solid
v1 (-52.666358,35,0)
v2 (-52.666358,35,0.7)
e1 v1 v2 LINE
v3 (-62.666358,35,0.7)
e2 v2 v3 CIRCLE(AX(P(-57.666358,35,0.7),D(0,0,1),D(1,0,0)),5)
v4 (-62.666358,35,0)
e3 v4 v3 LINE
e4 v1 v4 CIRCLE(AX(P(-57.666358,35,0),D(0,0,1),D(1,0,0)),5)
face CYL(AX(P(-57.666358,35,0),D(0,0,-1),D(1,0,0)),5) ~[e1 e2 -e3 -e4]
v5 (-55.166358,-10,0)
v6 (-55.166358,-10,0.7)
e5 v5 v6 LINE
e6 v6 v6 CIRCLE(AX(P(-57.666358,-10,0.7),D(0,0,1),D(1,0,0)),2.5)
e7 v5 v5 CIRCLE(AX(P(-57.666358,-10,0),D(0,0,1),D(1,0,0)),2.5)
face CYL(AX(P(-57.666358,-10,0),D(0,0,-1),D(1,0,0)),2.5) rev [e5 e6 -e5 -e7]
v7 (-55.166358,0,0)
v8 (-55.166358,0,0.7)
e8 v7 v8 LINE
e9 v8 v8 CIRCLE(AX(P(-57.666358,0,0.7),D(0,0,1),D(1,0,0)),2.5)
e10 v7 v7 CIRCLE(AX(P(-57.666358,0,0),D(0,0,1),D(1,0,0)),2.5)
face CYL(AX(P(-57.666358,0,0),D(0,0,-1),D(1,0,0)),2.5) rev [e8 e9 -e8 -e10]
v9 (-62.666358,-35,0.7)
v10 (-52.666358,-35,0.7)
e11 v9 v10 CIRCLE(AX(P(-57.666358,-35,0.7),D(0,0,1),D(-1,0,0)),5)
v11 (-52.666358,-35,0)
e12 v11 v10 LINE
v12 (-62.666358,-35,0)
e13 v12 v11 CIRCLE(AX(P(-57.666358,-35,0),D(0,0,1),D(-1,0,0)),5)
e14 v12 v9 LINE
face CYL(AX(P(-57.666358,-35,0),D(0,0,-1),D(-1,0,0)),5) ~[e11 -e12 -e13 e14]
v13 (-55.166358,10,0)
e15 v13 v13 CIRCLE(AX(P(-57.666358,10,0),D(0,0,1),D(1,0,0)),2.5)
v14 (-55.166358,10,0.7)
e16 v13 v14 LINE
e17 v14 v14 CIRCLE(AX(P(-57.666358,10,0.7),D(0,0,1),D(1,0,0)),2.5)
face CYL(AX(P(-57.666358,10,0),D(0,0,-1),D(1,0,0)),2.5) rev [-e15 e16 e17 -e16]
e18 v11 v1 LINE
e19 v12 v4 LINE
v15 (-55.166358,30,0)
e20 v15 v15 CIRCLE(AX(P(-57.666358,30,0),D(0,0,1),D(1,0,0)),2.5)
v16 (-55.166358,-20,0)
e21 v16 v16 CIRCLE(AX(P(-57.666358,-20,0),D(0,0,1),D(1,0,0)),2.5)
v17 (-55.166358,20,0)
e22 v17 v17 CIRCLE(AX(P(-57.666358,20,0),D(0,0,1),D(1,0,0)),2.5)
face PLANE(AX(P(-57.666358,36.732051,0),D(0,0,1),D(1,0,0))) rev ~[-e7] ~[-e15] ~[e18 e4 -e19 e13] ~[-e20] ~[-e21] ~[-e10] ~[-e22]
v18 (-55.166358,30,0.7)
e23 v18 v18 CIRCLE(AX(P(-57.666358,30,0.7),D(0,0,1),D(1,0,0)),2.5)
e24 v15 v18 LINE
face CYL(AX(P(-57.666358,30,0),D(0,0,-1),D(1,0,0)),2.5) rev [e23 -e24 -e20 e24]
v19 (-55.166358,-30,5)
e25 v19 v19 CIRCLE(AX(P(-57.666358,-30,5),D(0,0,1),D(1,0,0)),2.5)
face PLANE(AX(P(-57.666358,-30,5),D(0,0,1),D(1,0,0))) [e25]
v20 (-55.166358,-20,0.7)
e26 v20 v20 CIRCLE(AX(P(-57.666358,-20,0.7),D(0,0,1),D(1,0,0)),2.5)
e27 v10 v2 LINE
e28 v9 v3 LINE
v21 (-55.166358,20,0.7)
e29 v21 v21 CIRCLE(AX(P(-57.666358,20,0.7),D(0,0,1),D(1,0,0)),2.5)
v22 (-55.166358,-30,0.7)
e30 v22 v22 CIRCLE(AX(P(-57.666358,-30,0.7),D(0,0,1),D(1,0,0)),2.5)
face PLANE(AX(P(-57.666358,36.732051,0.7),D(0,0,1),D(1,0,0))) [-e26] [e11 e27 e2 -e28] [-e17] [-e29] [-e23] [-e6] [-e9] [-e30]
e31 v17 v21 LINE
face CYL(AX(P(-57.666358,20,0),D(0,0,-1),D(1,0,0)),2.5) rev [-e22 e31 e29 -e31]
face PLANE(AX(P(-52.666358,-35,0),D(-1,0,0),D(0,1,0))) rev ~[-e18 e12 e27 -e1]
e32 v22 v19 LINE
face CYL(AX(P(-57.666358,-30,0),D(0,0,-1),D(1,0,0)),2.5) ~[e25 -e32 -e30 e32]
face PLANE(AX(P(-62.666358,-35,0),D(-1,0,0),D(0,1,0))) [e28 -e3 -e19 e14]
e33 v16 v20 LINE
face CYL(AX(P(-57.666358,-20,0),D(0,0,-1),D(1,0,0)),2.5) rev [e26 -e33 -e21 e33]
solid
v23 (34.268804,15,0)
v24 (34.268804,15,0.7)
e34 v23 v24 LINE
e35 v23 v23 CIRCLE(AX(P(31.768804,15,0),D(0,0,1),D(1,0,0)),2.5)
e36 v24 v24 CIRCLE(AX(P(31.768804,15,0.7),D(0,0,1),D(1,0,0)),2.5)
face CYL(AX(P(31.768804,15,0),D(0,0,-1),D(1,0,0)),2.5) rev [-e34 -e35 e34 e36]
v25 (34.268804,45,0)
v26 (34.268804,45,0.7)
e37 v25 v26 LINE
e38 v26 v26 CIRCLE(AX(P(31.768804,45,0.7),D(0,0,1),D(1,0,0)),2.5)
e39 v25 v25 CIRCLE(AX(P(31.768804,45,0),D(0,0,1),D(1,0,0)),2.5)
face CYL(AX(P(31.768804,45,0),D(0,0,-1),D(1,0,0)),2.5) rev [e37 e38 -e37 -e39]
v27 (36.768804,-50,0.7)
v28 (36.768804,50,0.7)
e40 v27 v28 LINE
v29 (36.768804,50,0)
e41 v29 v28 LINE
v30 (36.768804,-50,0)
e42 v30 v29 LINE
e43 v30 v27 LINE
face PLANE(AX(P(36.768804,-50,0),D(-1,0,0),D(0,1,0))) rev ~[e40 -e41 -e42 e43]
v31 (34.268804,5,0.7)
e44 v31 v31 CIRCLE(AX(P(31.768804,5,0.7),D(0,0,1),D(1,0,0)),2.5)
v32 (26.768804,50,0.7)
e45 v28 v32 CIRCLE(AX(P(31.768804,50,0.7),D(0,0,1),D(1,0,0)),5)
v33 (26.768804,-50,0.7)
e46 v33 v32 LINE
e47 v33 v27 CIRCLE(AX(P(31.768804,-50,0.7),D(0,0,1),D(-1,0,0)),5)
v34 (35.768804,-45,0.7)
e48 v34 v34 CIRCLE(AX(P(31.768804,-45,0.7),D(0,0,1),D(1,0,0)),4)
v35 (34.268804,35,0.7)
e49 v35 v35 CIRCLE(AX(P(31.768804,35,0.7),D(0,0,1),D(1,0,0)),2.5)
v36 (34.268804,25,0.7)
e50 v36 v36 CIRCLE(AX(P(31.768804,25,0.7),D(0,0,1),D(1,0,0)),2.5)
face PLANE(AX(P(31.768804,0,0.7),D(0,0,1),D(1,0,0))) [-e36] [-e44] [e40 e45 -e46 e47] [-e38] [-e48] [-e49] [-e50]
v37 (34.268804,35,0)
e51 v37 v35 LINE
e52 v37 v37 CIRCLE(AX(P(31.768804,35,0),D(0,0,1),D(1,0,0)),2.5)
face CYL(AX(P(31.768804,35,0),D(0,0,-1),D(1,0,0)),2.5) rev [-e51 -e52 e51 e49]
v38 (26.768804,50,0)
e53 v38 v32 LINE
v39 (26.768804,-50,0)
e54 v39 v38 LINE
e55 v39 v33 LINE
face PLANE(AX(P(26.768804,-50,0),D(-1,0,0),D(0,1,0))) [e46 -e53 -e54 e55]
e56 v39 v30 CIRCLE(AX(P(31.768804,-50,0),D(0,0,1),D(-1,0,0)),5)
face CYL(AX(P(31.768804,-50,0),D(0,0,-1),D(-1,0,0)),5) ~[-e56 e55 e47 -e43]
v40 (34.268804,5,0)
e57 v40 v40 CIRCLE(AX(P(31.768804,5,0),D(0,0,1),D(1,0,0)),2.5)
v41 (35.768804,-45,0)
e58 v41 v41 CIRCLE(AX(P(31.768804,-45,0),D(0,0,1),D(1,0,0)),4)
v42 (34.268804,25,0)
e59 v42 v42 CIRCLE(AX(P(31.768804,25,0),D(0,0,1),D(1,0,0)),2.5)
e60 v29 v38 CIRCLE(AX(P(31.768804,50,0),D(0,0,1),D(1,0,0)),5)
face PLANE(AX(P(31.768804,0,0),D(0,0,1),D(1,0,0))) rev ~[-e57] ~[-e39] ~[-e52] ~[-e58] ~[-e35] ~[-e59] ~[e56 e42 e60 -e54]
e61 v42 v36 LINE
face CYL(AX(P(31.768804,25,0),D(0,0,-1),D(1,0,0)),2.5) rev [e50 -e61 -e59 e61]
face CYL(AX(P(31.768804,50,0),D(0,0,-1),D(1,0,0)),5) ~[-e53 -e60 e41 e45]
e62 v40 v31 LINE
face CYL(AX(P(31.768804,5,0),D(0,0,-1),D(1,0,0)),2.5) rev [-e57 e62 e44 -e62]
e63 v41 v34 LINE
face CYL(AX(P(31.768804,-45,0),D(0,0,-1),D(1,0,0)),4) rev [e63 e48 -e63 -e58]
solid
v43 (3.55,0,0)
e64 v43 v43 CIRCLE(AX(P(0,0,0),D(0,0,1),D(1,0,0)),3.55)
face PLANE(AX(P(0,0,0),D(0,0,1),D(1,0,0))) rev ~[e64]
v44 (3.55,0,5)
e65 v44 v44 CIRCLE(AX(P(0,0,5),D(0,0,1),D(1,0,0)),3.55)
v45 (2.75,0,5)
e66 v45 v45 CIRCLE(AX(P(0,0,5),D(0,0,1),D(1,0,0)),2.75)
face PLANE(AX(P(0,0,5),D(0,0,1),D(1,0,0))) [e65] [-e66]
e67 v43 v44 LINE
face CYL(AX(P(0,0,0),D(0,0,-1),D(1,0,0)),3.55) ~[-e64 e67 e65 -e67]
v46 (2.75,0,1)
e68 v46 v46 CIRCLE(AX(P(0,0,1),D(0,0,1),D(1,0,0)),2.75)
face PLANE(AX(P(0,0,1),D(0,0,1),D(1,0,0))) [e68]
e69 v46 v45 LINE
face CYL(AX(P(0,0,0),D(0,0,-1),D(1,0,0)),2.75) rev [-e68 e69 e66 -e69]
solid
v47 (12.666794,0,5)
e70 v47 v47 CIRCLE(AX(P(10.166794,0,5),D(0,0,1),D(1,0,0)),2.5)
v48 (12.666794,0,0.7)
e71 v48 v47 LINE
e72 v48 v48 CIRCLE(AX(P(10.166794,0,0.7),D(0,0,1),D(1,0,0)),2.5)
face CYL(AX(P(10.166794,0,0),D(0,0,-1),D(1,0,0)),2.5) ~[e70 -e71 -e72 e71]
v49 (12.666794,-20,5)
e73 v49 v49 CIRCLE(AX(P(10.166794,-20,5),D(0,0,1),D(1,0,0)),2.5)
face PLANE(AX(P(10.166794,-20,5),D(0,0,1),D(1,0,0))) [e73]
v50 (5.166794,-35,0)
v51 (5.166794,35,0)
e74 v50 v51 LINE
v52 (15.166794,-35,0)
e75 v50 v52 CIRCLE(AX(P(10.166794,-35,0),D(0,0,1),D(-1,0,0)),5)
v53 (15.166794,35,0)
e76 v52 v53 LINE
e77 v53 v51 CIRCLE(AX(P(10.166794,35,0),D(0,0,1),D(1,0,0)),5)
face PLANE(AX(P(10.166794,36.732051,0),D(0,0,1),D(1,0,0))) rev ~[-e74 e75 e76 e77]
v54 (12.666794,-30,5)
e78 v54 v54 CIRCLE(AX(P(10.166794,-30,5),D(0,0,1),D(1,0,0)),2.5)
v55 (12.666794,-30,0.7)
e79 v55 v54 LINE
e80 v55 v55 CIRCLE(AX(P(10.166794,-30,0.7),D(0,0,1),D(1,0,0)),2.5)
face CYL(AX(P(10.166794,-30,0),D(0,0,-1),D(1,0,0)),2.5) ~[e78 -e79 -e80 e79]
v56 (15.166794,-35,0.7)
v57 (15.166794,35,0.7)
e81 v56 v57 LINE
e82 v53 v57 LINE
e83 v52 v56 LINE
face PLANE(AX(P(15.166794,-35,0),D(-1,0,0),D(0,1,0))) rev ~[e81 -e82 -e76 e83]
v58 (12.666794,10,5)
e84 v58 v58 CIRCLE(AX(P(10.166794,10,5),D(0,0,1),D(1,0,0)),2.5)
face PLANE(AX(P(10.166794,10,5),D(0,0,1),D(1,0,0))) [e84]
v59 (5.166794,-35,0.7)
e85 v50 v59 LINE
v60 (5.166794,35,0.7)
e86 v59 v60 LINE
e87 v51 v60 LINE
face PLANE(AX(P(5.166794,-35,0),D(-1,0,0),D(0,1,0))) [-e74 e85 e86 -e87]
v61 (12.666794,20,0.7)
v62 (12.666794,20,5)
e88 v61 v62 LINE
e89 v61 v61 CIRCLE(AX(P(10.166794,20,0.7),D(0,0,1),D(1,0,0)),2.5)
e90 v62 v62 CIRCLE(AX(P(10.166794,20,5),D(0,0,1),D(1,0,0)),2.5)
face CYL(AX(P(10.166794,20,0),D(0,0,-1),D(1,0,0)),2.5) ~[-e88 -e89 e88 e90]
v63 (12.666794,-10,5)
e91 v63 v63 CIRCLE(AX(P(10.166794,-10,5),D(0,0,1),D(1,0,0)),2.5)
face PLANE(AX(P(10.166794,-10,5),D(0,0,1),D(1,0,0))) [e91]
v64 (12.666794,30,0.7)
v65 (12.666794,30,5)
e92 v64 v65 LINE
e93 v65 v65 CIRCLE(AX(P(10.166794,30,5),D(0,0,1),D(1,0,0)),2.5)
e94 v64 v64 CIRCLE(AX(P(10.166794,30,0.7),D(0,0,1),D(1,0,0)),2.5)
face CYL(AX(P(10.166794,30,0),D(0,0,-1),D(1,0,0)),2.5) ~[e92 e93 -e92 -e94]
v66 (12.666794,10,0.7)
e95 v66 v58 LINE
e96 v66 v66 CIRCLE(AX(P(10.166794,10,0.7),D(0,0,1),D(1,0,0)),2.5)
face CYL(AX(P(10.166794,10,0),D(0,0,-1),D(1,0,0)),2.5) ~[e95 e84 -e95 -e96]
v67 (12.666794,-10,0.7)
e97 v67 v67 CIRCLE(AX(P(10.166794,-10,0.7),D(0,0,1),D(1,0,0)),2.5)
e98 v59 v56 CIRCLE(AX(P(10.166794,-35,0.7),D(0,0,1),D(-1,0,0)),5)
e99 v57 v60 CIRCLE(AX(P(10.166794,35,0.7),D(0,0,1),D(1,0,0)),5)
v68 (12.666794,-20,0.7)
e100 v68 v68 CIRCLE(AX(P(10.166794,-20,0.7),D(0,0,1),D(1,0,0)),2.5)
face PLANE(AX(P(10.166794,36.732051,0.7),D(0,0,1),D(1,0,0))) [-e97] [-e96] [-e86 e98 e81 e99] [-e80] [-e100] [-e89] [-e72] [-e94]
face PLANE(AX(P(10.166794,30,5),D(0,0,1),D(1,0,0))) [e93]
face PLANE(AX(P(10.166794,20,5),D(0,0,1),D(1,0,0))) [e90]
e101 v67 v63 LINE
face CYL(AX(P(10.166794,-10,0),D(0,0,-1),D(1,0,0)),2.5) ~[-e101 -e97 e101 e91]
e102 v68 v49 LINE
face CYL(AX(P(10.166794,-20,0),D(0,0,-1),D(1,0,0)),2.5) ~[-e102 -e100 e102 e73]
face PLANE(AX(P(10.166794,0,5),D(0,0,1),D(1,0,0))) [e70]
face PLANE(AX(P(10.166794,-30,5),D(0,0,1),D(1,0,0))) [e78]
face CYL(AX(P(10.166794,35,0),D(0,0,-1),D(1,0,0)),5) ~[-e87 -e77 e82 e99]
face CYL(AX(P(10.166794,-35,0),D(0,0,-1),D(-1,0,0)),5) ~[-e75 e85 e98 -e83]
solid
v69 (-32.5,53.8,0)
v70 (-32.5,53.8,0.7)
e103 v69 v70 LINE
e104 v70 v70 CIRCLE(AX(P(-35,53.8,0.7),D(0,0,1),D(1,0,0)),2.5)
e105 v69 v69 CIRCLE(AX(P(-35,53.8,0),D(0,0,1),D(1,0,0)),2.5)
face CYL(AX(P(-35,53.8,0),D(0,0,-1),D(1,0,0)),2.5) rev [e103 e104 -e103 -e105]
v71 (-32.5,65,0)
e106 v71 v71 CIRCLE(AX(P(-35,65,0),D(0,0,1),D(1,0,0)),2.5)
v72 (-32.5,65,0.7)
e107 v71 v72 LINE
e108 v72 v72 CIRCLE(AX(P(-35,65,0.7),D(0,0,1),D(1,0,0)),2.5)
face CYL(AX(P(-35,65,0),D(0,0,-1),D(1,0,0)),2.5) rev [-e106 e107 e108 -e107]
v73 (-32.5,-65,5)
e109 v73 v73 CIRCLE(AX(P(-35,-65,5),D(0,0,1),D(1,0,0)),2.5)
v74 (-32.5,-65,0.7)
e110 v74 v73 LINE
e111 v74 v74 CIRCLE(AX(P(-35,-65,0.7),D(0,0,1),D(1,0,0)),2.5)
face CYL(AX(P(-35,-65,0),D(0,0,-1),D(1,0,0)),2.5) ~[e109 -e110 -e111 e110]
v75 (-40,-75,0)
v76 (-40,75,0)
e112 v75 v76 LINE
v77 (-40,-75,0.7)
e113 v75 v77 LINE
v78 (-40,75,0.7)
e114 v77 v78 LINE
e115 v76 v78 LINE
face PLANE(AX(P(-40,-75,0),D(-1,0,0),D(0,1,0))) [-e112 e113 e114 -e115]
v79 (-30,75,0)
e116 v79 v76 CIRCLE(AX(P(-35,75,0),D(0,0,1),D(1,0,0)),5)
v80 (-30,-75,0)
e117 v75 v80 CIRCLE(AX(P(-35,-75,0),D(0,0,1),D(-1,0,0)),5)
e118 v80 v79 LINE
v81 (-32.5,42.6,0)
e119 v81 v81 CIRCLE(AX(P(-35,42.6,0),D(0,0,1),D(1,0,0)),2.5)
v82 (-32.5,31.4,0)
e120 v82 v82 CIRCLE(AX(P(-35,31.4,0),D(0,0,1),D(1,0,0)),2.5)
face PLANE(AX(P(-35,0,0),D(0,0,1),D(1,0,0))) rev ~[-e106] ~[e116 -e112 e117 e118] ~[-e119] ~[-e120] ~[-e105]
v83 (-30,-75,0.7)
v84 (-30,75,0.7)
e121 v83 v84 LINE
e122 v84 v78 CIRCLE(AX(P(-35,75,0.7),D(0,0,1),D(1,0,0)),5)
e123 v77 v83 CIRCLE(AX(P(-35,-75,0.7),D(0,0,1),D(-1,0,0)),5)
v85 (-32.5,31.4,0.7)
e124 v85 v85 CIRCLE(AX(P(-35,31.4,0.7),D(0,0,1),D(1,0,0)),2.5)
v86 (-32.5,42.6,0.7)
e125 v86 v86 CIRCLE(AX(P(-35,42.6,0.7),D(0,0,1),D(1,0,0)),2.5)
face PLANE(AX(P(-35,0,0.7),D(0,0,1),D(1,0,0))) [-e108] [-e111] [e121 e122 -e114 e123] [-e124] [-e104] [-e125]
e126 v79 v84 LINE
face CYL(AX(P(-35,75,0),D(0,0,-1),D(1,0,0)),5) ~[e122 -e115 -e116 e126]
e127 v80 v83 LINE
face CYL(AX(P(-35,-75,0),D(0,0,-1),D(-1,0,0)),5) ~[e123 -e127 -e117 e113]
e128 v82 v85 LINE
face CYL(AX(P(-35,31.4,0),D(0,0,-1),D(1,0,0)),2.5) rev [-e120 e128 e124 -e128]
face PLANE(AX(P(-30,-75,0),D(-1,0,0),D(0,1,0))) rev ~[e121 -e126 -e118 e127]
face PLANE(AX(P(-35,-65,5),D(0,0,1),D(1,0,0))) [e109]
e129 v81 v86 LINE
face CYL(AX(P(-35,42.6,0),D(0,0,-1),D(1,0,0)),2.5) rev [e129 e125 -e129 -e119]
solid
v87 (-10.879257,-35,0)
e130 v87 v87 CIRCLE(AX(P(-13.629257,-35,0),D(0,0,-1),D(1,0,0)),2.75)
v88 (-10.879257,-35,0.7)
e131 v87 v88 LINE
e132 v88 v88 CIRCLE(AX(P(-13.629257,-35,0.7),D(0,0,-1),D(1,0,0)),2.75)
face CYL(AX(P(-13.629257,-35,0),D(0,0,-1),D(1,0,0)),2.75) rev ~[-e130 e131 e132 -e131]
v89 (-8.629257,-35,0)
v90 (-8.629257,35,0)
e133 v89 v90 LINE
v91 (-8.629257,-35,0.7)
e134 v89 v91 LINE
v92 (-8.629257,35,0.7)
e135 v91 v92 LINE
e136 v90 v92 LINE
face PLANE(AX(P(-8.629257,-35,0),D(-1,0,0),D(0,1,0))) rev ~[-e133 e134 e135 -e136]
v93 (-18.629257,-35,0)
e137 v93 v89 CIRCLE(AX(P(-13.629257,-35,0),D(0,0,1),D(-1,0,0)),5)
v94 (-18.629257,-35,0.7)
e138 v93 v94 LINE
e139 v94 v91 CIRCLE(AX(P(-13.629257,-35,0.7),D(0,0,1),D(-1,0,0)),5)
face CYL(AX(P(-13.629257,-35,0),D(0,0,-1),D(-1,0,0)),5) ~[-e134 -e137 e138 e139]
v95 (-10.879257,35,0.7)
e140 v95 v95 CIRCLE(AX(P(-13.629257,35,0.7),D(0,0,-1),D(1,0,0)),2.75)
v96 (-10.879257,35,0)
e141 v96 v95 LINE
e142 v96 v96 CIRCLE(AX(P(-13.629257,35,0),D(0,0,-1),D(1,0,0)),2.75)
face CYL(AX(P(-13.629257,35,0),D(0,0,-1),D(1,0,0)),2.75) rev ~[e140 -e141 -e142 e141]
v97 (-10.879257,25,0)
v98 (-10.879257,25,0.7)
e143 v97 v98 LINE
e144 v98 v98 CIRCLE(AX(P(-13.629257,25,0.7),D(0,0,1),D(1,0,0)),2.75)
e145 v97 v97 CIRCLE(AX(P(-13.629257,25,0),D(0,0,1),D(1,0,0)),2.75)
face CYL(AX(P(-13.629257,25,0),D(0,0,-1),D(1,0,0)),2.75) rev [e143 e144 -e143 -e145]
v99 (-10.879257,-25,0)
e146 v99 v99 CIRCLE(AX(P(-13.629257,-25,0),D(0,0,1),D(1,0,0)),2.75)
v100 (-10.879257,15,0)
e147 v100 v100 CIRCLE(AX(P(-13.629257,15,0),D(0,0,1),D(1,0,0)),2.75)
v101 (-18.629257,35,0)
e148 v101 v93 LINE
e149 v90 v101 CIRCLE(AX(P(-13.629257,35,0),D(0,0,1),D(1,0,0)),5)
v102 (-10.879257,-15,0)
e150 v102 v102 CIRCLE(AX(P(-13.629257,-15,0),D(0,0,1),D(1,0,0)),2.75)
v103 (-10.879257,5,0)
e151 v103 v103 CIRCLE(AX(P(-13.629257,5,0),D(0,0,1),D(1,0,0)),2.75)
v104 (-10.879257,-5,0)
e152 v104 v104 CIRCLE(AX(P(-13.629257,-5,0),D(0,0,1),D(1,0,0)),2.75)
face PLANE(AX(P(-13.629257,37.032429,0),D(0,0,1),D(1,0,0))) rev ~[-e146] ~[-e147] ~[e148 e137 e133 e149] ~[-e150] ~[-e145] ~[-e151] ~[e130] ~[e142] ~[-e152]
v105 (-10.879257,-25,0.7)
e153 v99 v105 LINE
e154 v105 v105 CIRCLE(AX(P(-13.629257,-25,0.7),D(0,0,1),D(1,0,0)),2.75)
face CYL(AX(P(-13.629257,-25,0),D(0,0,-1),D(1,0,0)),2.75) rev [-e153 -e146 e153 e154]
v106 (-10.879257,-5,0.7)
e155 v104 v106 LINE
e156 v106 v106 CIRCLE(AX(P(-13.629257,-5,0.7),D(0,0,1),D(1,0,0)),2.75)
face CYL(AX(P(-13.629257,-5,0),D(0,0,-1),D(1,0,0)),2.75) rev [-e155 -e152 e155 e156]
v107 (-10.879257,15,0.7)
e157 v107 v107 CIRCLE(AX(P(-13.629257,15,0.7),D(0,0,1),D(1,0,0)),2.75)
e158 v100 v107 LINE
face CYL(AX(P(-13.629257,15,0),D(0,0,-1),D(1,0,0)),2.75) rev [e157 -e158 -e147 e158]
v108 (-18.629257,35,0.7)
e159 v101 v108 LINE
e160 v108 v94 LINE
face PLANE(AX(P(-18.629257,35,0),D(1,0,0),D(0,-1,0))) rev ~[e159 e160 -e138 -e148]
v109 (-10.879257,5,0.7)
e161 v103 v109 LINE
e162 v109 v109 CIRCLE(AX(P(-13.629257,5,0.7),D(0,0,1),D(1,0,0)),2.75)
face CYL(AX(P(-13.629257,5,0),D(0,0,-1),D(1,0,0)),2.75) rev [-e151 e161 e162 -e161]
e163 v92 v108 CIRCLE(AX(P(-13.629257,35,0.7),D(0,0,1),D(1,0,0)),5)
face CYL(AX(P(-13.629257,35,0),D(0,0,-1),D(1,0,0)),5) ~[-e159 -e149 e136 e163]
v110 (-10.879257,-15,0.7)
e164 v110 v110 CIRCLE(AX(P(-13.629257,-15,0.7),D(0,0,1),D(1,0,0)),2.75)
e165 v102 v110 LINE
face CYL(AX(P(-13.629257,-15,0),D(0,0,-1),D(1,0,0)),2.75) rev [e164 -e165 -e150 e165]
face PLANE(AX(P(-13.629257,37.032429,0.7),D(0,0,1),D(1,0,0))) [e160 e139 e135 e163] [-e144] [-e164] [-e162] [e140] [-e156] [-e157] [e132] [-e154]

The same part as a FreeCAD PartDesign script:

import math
import FreeCAD as App
import Part
import Sketcher
Q = App.Units.Quantity

doc = App.newDocument("Part")
body = doc.addObject("PartDesign::Body", "Body")

sketch1 = body.newObject("Sketcher::SketchObject", "Sketch")
sketch1.AttachmentSupport = (doc.getObject("XY_Plane"), [""])
sketch1.MapMode = "FlatFace"
sketch1.addGeometry(Part.LineSegment(App.Vector(-40, 75, 0), App.Vector(-40, -75, 0)), False)
sketch1.addGeometry(Part.ArcOfCircle(Part.Circle(App.Vector(-35, -75, 0), App.Vector(0, 0, 1), 5), math.radians(180), math.radians(360)), False)
sketch1.addGeometry(Part.LineSegment(App.Vector(-30, -75, 0), App.Vector(-30, 75, 0)), False)
sketch1.addGeometry(Part.ArcOfCircle(Part.Circle(App.Vector(-35, 75, 0), App.Vector(0, 0, 1), 5), math.radians(0), math.radians(180)), False)
sketch1.addGeometry(Part.Circle(App.Vector(-35, -65, 0), App.Vector(0, 0, 1), 2.5), False)
sketch1.addGeometry(Part.Circle(App.Vector(-35, 31.4, 0), App.Vector(0, 0, 1), 2.5), False)
sketch1.addGeometry(Part.Circle(App.Vector(-35, 42.6, 0), App.Vector(0, 0, 1), 2.5), False)
sketch1.addGeometry(Part.Circle(App.Vector(-35, 53.8, 0), App.Vector(0, 0, 1), 2.5), False)
sketch1.addGeometry(Part.Circle(App.Vector(-35, 65, 0), App.Vector(0, 0, 1), 2.5), False)
sketch1.addConstraint(Sketcher.Constraint("Tangent", 0, 2, 1, 1))
sketch1.addConstraint(Sketcher.Constraint("Tangent", 1, 2, 2, 1))
sketch1.addConstraint(Sketcher.Constraint("Tangent", 2, 2, 3, 1))
sketch1.addConstraint(Sketcher.Constraint("Tangent", 3, 2, 0, 1))
sketch1.addConstraint(Sketcher.Constraint("Vertical", 0))
sketch1.addConstraint(Sketcher.Constraint("Vertical", 2))
sketch1.addConstraint(Sketcher.Constraint("Equal", 4, 5))
sketch1.addConstraint(Sketcher.Constraint("Equal", 5, 6))
sketch1.addConstraint(Sketcher.Constraint("Equal", 6, 7))
sketch1.addConstraint(Sketcher.Constraint("Equal", 7, 8))
sketch1.addConstraint(Sketcher.Constraint("Symmetric", 4, 3, 8, 3, -1))
sketch1.addConstraint(Sketcher.Constraint("Vertical", 3, 3, 4, 3))
sketch1.addConstraint(Sketcher.Constraint("Vertical", 4, 3, 5, 3))
sketch1.addConstraint(Sketcher.Constraint("Vertical", 5, 3, 6, 3))
sketch1.addConstraint(Sketcher.Constraint("Vertical", 6, 3, 7, 3))
sketch1.addConstraint(Sketcher.Constraint("Diameter", 4, Q("5 mm")))
sketch1.addConstraint(Sketcher.Constraint("Radius", 1, Q("5 mm")))
sketch1.addConstraint(Sketcher.Constraint("DistanceY", 0, 2, 0, 1, Q("150 mm")))
sketch1.addConstraint(Sketcher.Constraint("DistanceX", 1, 3, -1, 1, Q("35 mm")))
sketch1.addConstraint(Sketcher.Constraint("DistanceY", 1, 3, -1, 1, Q("75 mm")))
sketch1.addConstraint(Sketcher.Constraint("DistanceY", 4, 3, -1, 1, Q("65 mm")))
sketch1.addConstraint(Sketcher.Constraint("DistanceY", -1, 1, 5, 3, Q("31.4 mm")))
sketch1.addConstraint(Sketcher.Constraint("DistanceY", -1, 1, 6, 3, Q("42.6 mm")))
sketch1.addConstraint(Sketcher.Constraint("DistanceY", -1, 1, 7, 3, Q("53.8 mm")))
pad1 = body.newObject("PartDesign::Pad", "Pad")
pad1.Profile = sketch1
pad1.Length = 0.7

sketch2 = body.newObject("Sketcher::SketchObject", "Sketch001")
sketch2.AttachmentSupport = (doc.getObject("XY_Plane"), [""])
sketch2.MapMode = "FlatFace"
sketch2.addGeometry(Part.Circle(App.Vector(-35, -65, 0), App.Vector(0, 0, 1), 2.5), False)
sketch2.addConstraint(Sketcher.Constraint("Diameter", 0, Q("5 mm")))
sketch2.addConstraint(Sketcher.Constraint("DistanceX", 0, 3, -1, 1, Q("35 mm")))
sketch2.addConstraint(Sketcher.Constraint("DistanceY", 0, 3, -1, 1, Q("65 mm")))
pad2 = body.newObject("PartDesign::Pad", "Pad001")
pad2.Profile = sketch2
pad2.Length = 5
body2 = doc.addObject("PartDesign::Body", "Body001")

sketch3 = body2.newObject("Sketcher::SketchObject", "Sketch002")
sketch3.AttachmentSupport = (doc.getObject("XY_Plane001"), [""])
sketch3.MapMode = "FlatFace"
sketch3.addGeometry(Part.ArcOfCircle(Part.Circle(App.Vector(-57.7, 35, 0), App.Vector(0, 0, 1), 5), math.radians(0), math.radians(180)), False)
sketch3.addGeometry(Part.LineSegment(App.Vector(-62.7, 35, 0), App.Vector(-62.7, -35, 0)), False)
sketch3.addGeometry(Part.ArcOfCircle(Part.Circle(App.Vector(-57.7, -35, 0), App.Vector(0, 0, 1), 5), math.radians(180), math.radians(360)), False)
sketch3.addGeometry(Part.LineSegment(App.Vector(-52.7, -35, 0), App.Vector(-52.7, 35, 0)), False)
sketch3.addGeometry(Part.Circle(App.Vector(-57.7, -30, 0), App.Vector(0, 0, 1), 2.5), False)
sketch3.addGeometry(Part.Circle(App.Vector(-57.7, -20, 0), App.Vector(0, 0, 1), 2.5), False)
sketch3.addGeometry(Part.Circle(App.Vector(-57.7, -10, 0), App.Vector(0, 0, 1), 2.5), False)
sketch3.addGeometry(Part.Circle(App.Vector(-57.7, 0, 0), App.Vector(0, 0, 1), 2.5), False)
sketch3.addGeometry(Part.Circle(App.Vector(-57.7, 10, 0), App.Vector(0, 0, 1), 2.5), False)
sketch3.addGeometry(Part.Circle(App.Vector(-57.7, 20, 0), App.Vector(0, 0, 1), 2.5), False)
sketch3.addGeometry(Part.Circle(App.Vector(-57.7, 30, 0), App.Vector(0, 0, 1), 2.5), False)
sketch3.addConstraint(Sketcher.Constraint("Tangent", 0, 2, 1, 1))
sketch3.addConstraint(Sketcher.Constraint("Tangent", 1, 2, 2, 1))
sketch3.addConstraint(Sketcher.Constraint("Tangent", 2, 2, 3, 1))
sketch3.addConstraint(Sketcher.Constraint("Tangent", 3, 2, 0, 1))
sketch3.addConstraint(Sketcher.Constraint("Vertical", 1))
sketch3.addConstraint(Sketcher.Constraint("Vertical", 3))
sketch3.addConstraint(Sketcher.Constraint("Equal", 4, 5))
sketch3.addConstraint(Sketcher.Constraint("Equal", 5, 6))
sketch3.addConstraint(Sketcher.Constraint("Equal", 6, 7))
sketch3.addConstraint(Sketcher.Constraint("Equal", 7, 8))
sketch3.addConstraint(Sketcher.Constraint("Equal", 8, 9))
sketch3.addConstraint(Sketcher.Constraint("Equal", 9, 10))
sketch3.addConstraint(Sketcher.Constraint("Symmetric", 6, 3, 8, 3, -1))
sketch3.addConstraint(Sketcher.Constraint("Symmetric", 5, 3, 9, 3, -1))
sketch3.addConstraint(Sketcher.Constraint("Symmetric", 4, 3, 10, 3, -1))
sketch3.addConstraint(Sketcher.Constraint("PointOnObject", 7, 3, -1))
sketch3.addConstraint(Sketcher.Constraint("Vertical", 2, 3, 4, 3))
sketch3.addConstraint(Sketcher.Constraint("Vertical", 4, 3, 5, 3))
sketch3.addConstraint(Sketcher.Constraint("Vertical", 5, 3, 6, 3))
sketch3.addConstraint(Sketcher.Constraint("Vertical", 6, 3, 7, 3))
sketch3.addConstraint(Sketcher.Constraint("Diameter", 4, Q("5 mm")))
sketch3.addConstraint(Sketcher.Constraint("Radius", 0, Q("5 mm")))
sketch3.addConstraint(Sketcher.Constraint("DistanceY", 1, 2, 1, 1, Q("70 mm")))
sketch3.addConstraint(Sketcher.Constraint("DistanceY", -1, 1, 0, 3, Q("35 mm")))
sketch3.addConstraint(Sketcher.Constraint("DistanceY", 4, 3, -1, 1, Q("30 mm")))
sketch3.addConstraint(Sketcher.Constraint("DistanceY", 5, 3, -1, 1, Q("20 mm")))
sketch3.addConstraint(Sketcher.Constraint("DistanceY", 6, 3, -1, 1, Q("10 mm")))
sketch3.addConstraint(Sketcher.Constraint("DistanceX", 0, 3, -1, 1, Q("57.666358 mm")))
pad3 = body2.newObject("PartDesign::Pad", "Pad002")
pad3.Profile = sketch3
pad3.Length = 0.7

sketch4 = body2.newObject("Sketcher::SketchObject", "Sketch003")
sketch4.AttachmentSupport = (doc.getObject("XY_Plane001"), [""])
sketch4.MapMode = "FlatFace"
sketch4.addGeometry(Part.Circle(App.Vector(-57.7, -30, 0), App.Vector(0, 0, 1), 2.5), False)
sketch4.addConstraint(Sketcher.Constraint("Diameter", 0, Q("5 mm")))
sketch4.addConstraint(Sketcher.Constraint("DistanceY", 0, 3, -1, 1, Q("30 mm")))
sketch4.addConstraint(Sketcher.Constraint("DistanceX", 0, 3, -1, 1, Q("57.666358 mm")))
pad4 = body2.newObject("PartDesign::Pad", "Pad003")
pad4.Profile = sketch4
pad4.Length = 5
body3 = doc.addObject("PartDesign::Body", "Body002")

sketch5 = body3.newObject("Sketcher::SketchObject", "Sketch004")
sketch5.AttachmentSupport = (doc.getObject("XY_Plane002"), [""])
sketch5.MapMode = "FlatFace"
sketch5.addGeometry(Part.LineSegment(App.Vector(26.8, 50, 0), App.Vector(26.8, -50, 0)), False)
sketch5.addGeometry(Part.ArcOfCircle(Part.Circle(App.Vector(31.8, -50, 0), App.Vector(0, 0, 1), 5), math.radians(180), math.radians(360)), False)
sketch5.addGeometry(Part.LineSegment(App.Vector(36.8, -50, 0), App.Vector(36.8, 50, 0)), False)
sketch5.addGeometry(Part.ArcOfCircle(Part.Circle(App.Vector(31.8, 50, 0), App.Vector(0, 0, 1), 5), math.radians(0), math.radians(180)), False)
sketch5.addGeometry(Part.Circle(App.Vector(31.8, -45, 0), App.Vector(0, 0, 1), 4), False)
sketch5.addGeometry(Part.Circle(App.Vector(31.8, 5, 0), App.Vector(0, 0, 1), 2.5), False)
sketch5.addGeometry(Part.Circle(App.Vector(31.8, 15, 0), App.Vector(0, 0, 1), 2.5), False)
sketch5.addGeometry(Part.Circle(App.Vector(31.8, 25, 0), App.Vector(0, 0, 1), 2.5), False)
sketch5.addGeometry(Part.Circle(App.Vector(31.8, 35, 0), App.Vector(0, 0, 1), 2.5), False)
sketch5.addGeometry(Part.Circle(App.Vector(31.8, 45, 0), App.Vector(0, 0, 1), 2.5), False)
sketch5.addConstraint(Sketcher.Constraint("Tangent", 0, 2, 1, 1))
sketch5.addConstraint(Sketcher.Constraint("Tangent", 1, 2, 2, 1))
sketch5.addConstraint(Sketcher.Constraint("Tangent", 2, 2, 3, 1))
sketch5.addConstraint(Sketcher.Constraint("Tangent", 3, 2, 0, 1))
sketch5.addConstraint(Sketcher.Constraint("Vertical", 0))
sketch5.addConstraint(Sketcher.Constraint("Vertical", 2))
sketch5.addConstraint(Sketcher.Constraint("Equal", 5, 6))
sketch5.addConstraint(Sketcher.Constraint("Equal", 6, 7))
sketch5.addConstraint(Sketcher.Constraint("Equal", 7, 8))
sketch5.addConstraint(Sketcher.Constraint("Equal", 8, 9))
sketch5.addConstraint(Sketcher.Constraint("Symmetric", 4, 3, 9, 3, -1))
sketch5.addConstraint(Sketcher.Constraint("Vertical", 3, 3, 4, 3))
sketch5.addConstraint(Sketcher.Constraint("Vertical", 4, 3, 5, 3))
sketch5.addConstraint(Sketcher.Constraint("Vertical", 5, 3, 6, 3))
sketch5.addConstraint(Sketcher.Constraint("Vertical", 6, 3, 7, 3))
sketch5.addConstraint(Sketcher.Constraint("Vertical", 7, 3, 8, 3))
sketch5.addConstraint(Sketcher.Constraint("Diameter", 4, Q("8 mm")))
sketch5.addConstraint(Sketcher.Constraint("Diameter", 5, Q("5 mm")))
sketch5.addConstraint(Sketcher.Constraint("Radius", 1, Q("5 mm")))
sketch5.addConstraint(Sketcher.Constraint("DistanceY", 0, 2, 0, 1, Q("100 mm")))
sketch5.addConstraint(Sketcher.Constraint("DistanceY", 1, 3, -1, 1, Q("50 mm")))
sketch5.addConstraint(Sketcher.Constraint("DistanceY", 4, 3, -1, 1, Q("45 mm")))
sketch5.addConstraint(Sketcher.Constraint("DistanceY", -1, 1, 5, 3, Q("5 mm")))
sketch5.addConstraint(Sketcher.Constraint("DistanceY", -1, 1, 6, 3, Q("15 mm")))
sketch5.addConstraint(Sketcher.Constraint("DistanceY", -1, 1, 7, 3, Q("25 mm")))
sketch5.addConstraint(Sketcher.Constraint("DistanceY", -1, 1, 8, 3, Q("35 mm")))
sketch5.addConstraint(Sketcher.Constraint("DistanceX", -1, 1, 1, 3, Q("31.768804 mm")))
pad5 = body3.newObject("PartDesign::Pad", "Pad004")
pad5.Profile = sketch5
pad5.Length = 0.7
body4 = doc.addObject("PartDesign::Body", "Body003")

sketch6 = body4.newObject("Sketcher::SketchObject", "Sketch005")
sketch6.AttachmentSupport = (doc.getObject("XY_Plane003"), [""])
sketch6.MapMode = "FlatFace"
sketch6.addGeometry(Part.ArcOfCircle(Part.Circle(App.Vector(-13.6, 35, 0), App.Vector(0, 0, 1), 5), math.radians(0), math.radians(180)), False)
sketch6.addGeometry(Part.LineSegment(App.Vector(-18.6, 35, 0), App.Vector(-18.6, -35, 0)), False)
sketch6.addGeometry(Part.ArcOfCircle(Part.Circle(App.Vector(-13.6, -35, 0), App.Vector(0, 0, 1), 5), math.radians(180), math.radians(360)), False)
sketch6.addGeometry(Part.LineSegment(App.Vector(-8.6, -35, 0), App.Vector(-8.6, 35, 0)), False)
sketch6.addGeometry(Part.Circle(App.Vector(-13.6, -35, 0), App.Vector(0, 0, 1), 2.8), False)
sketch6.addGeometry(Part.Circle(App.Vector(-13.6, -25, 0), App.Vector(0, 0, 1), 2.8), False)
sketch6.addGeometry(Part.Circle(App.Vector(-13.6, -15, 0), App.Vector(0, 0, 1), 2.8), False)
sketch6.addGeometry(Part.Circle(App.Vector(-13.6, -5, 0), App.Vector(0, 0, 1), 2.8), False)
sketch6.addGeometry(Part.Circle(App.Vector(-13.6, 5, 0), App.Vector(0, 0, 1), 2.8), False)
sketch6.addGeometry(Part.Circle(App.Vector(-13.6, 15, 0), App.Vector(0, 0, 1), 2.8), False)
sketch6.addGeometry(Part.Circle(App.Vector(-13.6, 25, 0), App.Vector(0, 0, 1), 2.8), False)
sketch6.addGeometry(Part.Circle(App.Vector(-13.6, 35, 0), App.Vector(0, 0, 1), 2.8), False)
sketch6.addConstraint(Sketcher.Constraint("Tangent", 0, 2, 1, 1))
sketch6.addConstraint(Sketcher.Constraint("Tangent", 1, 2, 2, 1))
sketch6.addConstraint(Sketcher.Constraint("Tangent", 2, 2, 3, 1))
sketch6.addConstraint(Sketcher.Constraint("Tangent", 3, 2, 0, 1))
sketch6.addConstraint(Sketcher.Constraint("Vertical", 1))
sketch6.addConstraint(Sketcher.Constraint("Vertical", 3))
sketch6.addConstraint(Sketcher.Constraint("Coincident", 4, 3, 2, 3))
sketch6.addConstraint(Sketcher.Constraint("Coincident", 11, 3, 0, 3))
sketch6.addConstraint(Sketcher.Constraint("Equal", 4, 5))
sketch6.addConstraint(Sketcher.Constraint("Equal", 5, 6))
sketch6.addConstraint(Sketcher.Constraint("Equal", 6, 7))
sketch6.addConstraint(Sketcher.Constraint("Equal", 7, 8))
sketch6.addConstraint(Sketcher.Constraint("Equal", 8, 9))
sketch6.addConstraint(Sketcher.Constraint("Equal", 9, 10))
sketch6.addConstraint(Sketcher.Constraint("Equal", 10, 11))
sketch6.addConstraint(Sketcher.Constraint("Symmetric", 7, 3, 8, 3, -1))
sketch6.addConstraint(Sketcher.Constraint("Symmetric", 6, 3, 9, 3, -1))
sketch6.addConstraint(Sketcher.Constraint("Symmetric", 5, 3, 10, 3, -1))
sketch6.addConstraint(Sketcher.Constraint("Vertical", 4, 3, 5, 3))
sketch6.addConstraint(Sketcher.Constraint("Vertical", 5, 3, 6, 3))
sketch6.addConstraint(Sketcher.Constraint("Vertical", 6, 3, 7, 3))
sketch6.addConstraint(Sketcher.Constraint("Radius", 0, Q("5 mm")))
sketch6.addConstraint(Sketcher.Constraint("Diameter", 4, Q("5.5 mm")))
sketch6.addConstraint(Sketcher.Constraint("DistanceY", 1, 2, 1, 1, Q("70 mm")))
sketch6.addConstraint(Sketcher.Constraint("DistanceY", -1, 1, 0, 3, Q("35 mm")))
sketch6.addConstraint(Sketcher.Constraint("DistanceY", 5, 3, -1, 1, Q("25 mm")))
sketch6.addConstraint(Sketcher.Constraint("DistanceY", 6, 3, -1, 1, Q("15 mm")))
sketch6.addConstraint(Sketcher.Constraint("DistanceY", 7, 3, -1, 1, Q("5 mm")))
sketch6.addConstraint(Sketcher.Constraint("DistanceX", 0, 3, -1, 1, Q("13.629257 mm")))
pad6 = body4.newObject("PartDesign::Pad", "Pad005")
pad6.Profile = sketch6
pad6.Length = 0.7
body5 = doc.addObject("PartDesign::Body", "Body004")

sketch7 = body5.newObject("Sketcher::SketchObject", "Sketch006")
sketch7.AttachmentSupport = (doc.getObject("XY_Plane004"), [""])
sketch7.MapMode = "FlatFace"
sketch7.addGeometry(Part.ArcOfCircle(Part.Circle(App.Vector(10.2, 35, 0), App.Vector(0, 0, 1), 5), math.radians(0), math.radians(180)), False)
sketch7.addGeometry(Part.LineSegment(App.Vector(5.2, 35, 0), App.Vector(5.2, -35, 0)), False)
sketch7.addGeometry(Part.ArcOfCircle(Part.Circle(App.Vector(10.2, -35, 0), App.Vector(0, 0, 1), 5), math.radians(180), math.radians(360)), False)
sketch7.addGeometry(Part.LineSegment(App.Vector(15.2, -35, 0), App.Vector(15.2, 35, 0)), False)
sketch7.addGeometry(Part.Circle(App.Vector(10.2, -30, 0), App.Vector(0, 0, 1), 2.5), False)
sketch7.addGeometry(Part.Circle(App.Vector(10.2, -20, 0), App.Vector(0, 0, 1), 2.5), False)
sketch7.addGeometry(Part.Circle(App.Vector(10.2, -10, 0), App.Vector(0, 0, 1), 2.5), False)
sketch7.addGeometry(Part.Circle(App.Vector(10.2, 0, 0), App.Vector(0, 0, 1), 2.5), False)
sketch7.addGeometry(Part.Circle(App.Vector(10.2, 10, 0), App.Vector(0, 0, 1), 2.5), False)
sketch7.addGeometry(Part.Circle(App.Vector(10.2, 20, 0), App.Vector(0, 0, 1), 2.5), False)
sketch7.addGeometry(Part.Circle(App.Vector(10.2, 30, 0), App.Vector(0, 0, 1), 2.5), False)
sketch7.addConstraint(Sketcher.Constraint("Tangent", 0, 2, 1, 1))
sketch7.addConstraint(Sketcher.Constraint("Tangent", 1, 2, 2, 1))
sketch7.addConstraint(Sketcher.Constraint("Tangent", 2, 2, 3, 1))
sketch7.addConstraint(Sketcher.Constraint("Tangent", 3, 2, 0, 1))
sketch7.addConstraint(Sketcher.Constraint("Vertical", 1))
sketch7.addConstraint(Sketcher.Constraint("Vertical", 3))
sketch7.addConstraint(Sketcher.Constraint("Equal", 4, 5))
sketch7.addConstraint(Sketcher.Constraint("Equal", 5, 6))
sketch7.addConstraint(Sketcher.Constraint("Equal", 6, 7))
sketch7.addConstraint(Sketcher.Constraint("Equal", 7, 8))
sketch7.addConstraint(Sketcher.Constraint("Equal", 8, 9))
sketch7.addConstraint(Sketcher.Constraint("Equal", 9, 10))
sketch7.addConstraint(Sketcher.Constraint("Symmetric", 6, 3, 8, 3, -1))
sketch7.addConstraint(Sketcher.Constraint("Symmetric", 5, 3, 9, 3, -1))
sketch7.addConstraint(Sketcher.Constraint("Symmetric", 4, 3, 10, 3, -1))
sketch7.addConstraint(Sketcher.Constraint("PointOnObject", 7, 3, -1))
sketch7.addConstraint(Sketcher.Constraint("Vertical", 2, 3, 4, 3))
sketch7.addConstraint(Sketcher.Constraint("Vertical", 4, 3, 5, 3))
sketch7.addConstraint(Sketcher.Constraint("Vertical", 5, 3, 6, 3))
sketch7.addConstraint(Sketcher.Constraint("Vertical", 6, 3, 7, 3))
sketch7.addConstraint(Sketcher.Constraint("Diameter", 4, Q("5 mm")))
sketch7.addConstraint(Sketcher.Constraint("Radius", 0, Q("5 mm")))
sketch7.addConstraint(Sketcher.Constraint("DistanceY", 1, 2, 1, 1, Q("70 mm")))
sketch7.addConstraint(Sketcher.Constraint("DistanceY", -1, 1, 0, 3, Q("35 mm")))
sketch7.addConstraint(Sketcher.Constraint("DistanceY", 4, 3, -1, 1, Q("30 mm")))
sketch7.addConstraint(Sketcher.Constraint("DistanceY", 5, 3, -1, 1, Q("20 mm")))
sketch7.addConstraint(Sketcher.Constraint("DistanceY", 6, 3, -1, 1, Q("10 mm")))
sketch7.addConstraint(Sketcher.Constraint("DistanceX", -1, 1, 0, 3, Q("10.166794 mm")))
pad7 = body5.newObject("PartDesign::Pad", "Pad006")
pad7.Profile = sketch7
pad7.Length = 0.7

sketch8 = body5.newObject("Sketcher::SketchObject", "Sketch007")
sketch8.AttachmentSupport = (doc.getObject("XY_Plane004"), [""])
sketch8.MapMode = "FlatFace"
sketch8.addGeometry(Part.Circle(App.Vector(10.2, 30, 0), App.Vector(0, 0, 1), 2.5), False)
sketch8.addGeometry(Part.Circle(App.Vector(10.2, 20, 0), App.Vector(0, 0, 1), 2.5), False)
sketch8.addGeometry(Part.Circle(App.Vector(10.2, 10, 0), App.Vector(0, 0, 1), 2.5), False)
sketch8.addGeometry(Part.Circle(App.Vector(10.2, 0, 0), App.Vector(0, 0, 1), 2.5), False)
sketch8.addGeometry(Part.Circle(App.Vector(10.2, -10, 0), App.Vector(0, 0, 1), 2.5), False)
sketch8.addGeometry(Part.Circle(App.Vector(10.2, -20, 0), App.Vector(0, 0, 1), 2.5), False)
sketch8.addGeometry(Part.Circle(App.Vector(10.2, -30, 0), App.Vector(0, 0, 1), 2.5), False)
sketch8.addConstraint(Sketcher.Constraint("Equal", 0, 1))
sketch8.addConstraint(Sketcher.Constraint("Equal", 1, 2))
sketch8.addConstraint(Sketcher.Constraint("Equal", 2, 3))
sketch8.addConstraint(Sketcher.Constraint("Equal", 3, 4))
sketch8.addConstraint(Sketcher.Constraint("Equal", 4, 5))
sketch8.addConstraint(Sketcher.Constraint("Equal", 5, 6))
sketch8.addConstraint(Sketcher.Constraint("Symmetric", 2, 3, 4, 3, -1))
sketch8.addConstraint(Sketcher.Constraint("Symmetric", 1, 3, 5, 3, -1))
sketch8.addConstraint(Sketcher.Constraint("Symmetric", 0, 3, 6, 3, -1))
sketch8.addConstraint(Sketcher.Constraint("PointOnObject", 3, 3, -1))
sketch8.addConstraint(Sketcher.Constraint("Vertical", 0, 3, 1, 3))
sketch8.addConstraint(Sketcher.Constraint("Vertical", 1, 3, 2, 3))
sketch8.addConstraint(Sketcher.Constraint("Vertical", 2, 3, 3, 3))
sketch8.addConstraint(Sketcher.Constraint("Diameter", 0, Q("5 mm")))
sketch8.addConstraint(Sketcher.Constraint("DistanceY", -1, 1, 0, 3, Q("30 mm")))
sketch8.addConstraint(Sketcher.Constraint("DistanceY", -1, 1, 1, 3, Q("20 mm")))
sketch8.addConstraint(Sketcher.Constraint("DistanceY", -1, 1, 2, 3, Q("10 mm")))
sketch8.addConstraint(Sketcher.Constraint("DistanceX", -1, 1, 0, 3, Q("10.166794 mm")))
pad8 = body5.newObject("PartDesign::Pad", "Pad007")
pad8.Profile = sketch8
pad8.Length = 5
body6 = doc.addObject("PartDesign::Body", "Body005")

sketch9 = body6.newObject("Sketcher::SketchObject", "Sketch008")
sketch9.AttachmentSupport = (doc.getObject("XY_Plane005"), [""])
sketch9.MapMode = "FlatFace"
sketch9.addGeometry(Part.Circle(App.Vector(0, 0, 0), App.Vector(0, 0, 1), 3.5), False)
sketch9.addGeometry(Part.Circle(App.Vector(0, 0, 0), App.Vector(0, 0, 1), 2.8), False)
sketch9.addConstraint(Sketcher.Constraint("Coincident", 0, 3, -1, 1))
sketch9.addConstraint(Sketcher.Constraint("Coincident", 1, 3, -1, 1))
sketch9.addConstraint(Sketcher.Constraint("Diameter", 0, Q("7.1 mm")))
sketch9.addConstraint(Sketcher.Constraint("Diameter", 1, Q("5.5 mm")))
pad9 = body6.newObject("PartDesign::Pad", "Pad008")
pad9.Profile = sketch9
pad9.Length = 5

sketch10 = body6.newObject("Sketcher::SketchObject", "Sketch009")
sketch10.AttachmentSupport = (doc.getObject("XY_Plane005"), [""])
sketch10.MapMode = "FlatFace"
sketch10.addGeometry(Part.Circle(App.Vector(0, 0, 0), App.Vector(0, 0, 1), 2.8), False)
sketch10.addConstraint(Sketcher.Constraint("Coincident", 0, 3, -1, 1))
sketch10.addConstraint(Sketcher.Constraint("Diameter", 0, Q("5.5 mm")))
pad10 = body6.newObject("PartDesign::Pad", "Pad009")
pad10.Profile = sketch10
pad10.Length = 1

doc.recompute()
